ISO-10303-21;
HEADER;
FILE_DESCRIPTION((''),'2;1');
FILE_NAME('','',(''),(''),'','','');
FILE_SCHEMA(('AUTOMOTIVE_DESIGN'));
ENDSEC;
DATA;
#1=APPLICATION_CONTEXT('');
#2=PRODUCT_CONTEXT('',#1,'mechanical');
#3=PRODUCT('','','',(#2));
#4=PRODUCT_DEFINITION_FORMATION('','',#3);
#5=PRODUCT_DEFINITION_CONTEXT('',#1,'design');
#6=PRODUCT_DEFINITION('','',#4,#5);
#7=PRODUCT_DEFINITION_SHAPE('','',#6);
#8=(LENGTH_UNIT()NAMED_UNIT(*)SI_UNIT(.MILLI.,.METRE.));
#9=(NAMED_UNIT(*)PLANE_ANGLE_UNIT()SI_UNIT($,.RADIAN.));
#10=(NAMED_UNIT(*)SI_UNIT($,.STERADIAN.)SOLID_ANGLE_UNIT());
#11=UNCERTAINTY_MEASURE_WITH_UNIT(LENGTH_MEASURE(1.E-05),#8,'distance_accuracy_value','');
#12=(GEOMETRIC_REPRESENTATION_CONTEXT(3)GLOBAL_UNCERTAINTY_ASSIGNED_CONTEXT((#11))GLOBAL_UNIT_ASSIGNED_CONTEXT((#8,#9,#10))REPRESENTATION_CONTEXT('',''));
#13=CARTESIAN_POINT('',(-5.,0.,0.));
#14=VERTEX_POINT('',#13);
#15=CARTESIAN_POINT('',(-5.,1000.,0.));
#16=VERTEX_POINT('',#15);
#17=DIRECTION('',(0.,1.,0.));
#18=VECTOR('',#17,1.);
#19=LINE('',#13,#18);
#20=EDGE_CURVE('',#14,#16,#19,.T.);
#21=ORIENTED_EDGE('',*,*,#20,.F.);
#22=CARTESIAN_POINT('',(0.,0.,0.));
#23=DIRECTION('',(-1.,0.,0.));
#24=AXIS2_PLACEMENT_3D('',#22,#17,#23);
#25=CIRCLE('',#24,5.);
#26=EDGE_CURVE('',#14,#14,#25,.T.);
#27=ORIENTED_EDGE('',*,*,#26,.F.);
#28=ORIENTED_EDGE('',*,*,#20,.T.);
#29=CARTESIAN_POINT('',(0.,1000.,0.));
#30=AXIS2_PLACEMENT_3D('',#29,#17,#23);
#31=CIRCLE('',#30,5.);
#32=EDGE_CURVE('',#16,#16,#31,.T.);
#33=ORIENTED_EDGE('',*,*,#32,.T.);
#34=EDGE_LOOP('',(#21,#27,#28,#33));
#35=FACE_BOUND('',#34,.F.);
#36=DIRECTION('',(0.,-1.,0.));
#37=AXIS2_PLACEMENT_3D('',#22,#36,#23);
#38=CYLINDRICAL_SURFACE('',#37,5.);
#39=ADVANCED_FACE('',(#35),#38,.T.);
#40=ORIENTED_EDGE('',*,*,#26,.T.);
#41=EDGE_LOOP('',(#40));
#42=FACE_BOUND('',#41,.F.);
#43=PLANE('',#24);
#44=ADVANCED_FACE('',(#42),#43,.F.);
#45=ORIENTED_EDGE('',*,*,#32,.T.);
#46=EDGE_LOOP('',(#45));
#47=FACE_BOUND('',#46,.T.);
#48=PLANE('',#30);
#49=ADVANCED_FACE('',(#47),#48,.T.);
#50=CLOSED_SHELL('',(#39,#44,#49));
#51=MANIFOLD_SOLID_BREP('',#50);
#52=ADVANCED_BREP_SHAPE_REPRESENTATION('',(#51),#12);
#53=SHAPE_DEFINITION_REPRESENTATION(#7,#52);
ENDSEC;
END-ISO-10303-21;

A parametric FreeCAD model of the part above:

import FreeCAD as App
import Part
import Sketcher

V = App.Vector
Q = App.Units.Quantity

doc = App.newDocument("Part")
body = doc.addObject("PartDesign::Body", "Body")

# Sketch on XZ plane
sketch1 = doc.addObject("Sketcher::SketchObject", "Sketch")
body.addObject(sketch1)
sketch1.AttachmentSupport = (doc.XZ_Plane, [""])
sketch1.MapMode = "FlatFace"
sketch1.addGeometry(Part.Circle(V(0, 0, 0), V(0, 0, 1), 5), False)
sketch1.addConstraint(Sketcher.Constraint("Coincident", 0, 3, -1, 1))
sketch1.addConstraint(Sketcher.Constraint("Diameter", 0, Q("10 mm")))
pad1 = doc.addObject("PartDesign::Pad", "Pad")
body.addObject(pad1)
pad1.Profile = sketch1
pad1.Length = 1000
pad1.Reversed = True

doc.recompute()
